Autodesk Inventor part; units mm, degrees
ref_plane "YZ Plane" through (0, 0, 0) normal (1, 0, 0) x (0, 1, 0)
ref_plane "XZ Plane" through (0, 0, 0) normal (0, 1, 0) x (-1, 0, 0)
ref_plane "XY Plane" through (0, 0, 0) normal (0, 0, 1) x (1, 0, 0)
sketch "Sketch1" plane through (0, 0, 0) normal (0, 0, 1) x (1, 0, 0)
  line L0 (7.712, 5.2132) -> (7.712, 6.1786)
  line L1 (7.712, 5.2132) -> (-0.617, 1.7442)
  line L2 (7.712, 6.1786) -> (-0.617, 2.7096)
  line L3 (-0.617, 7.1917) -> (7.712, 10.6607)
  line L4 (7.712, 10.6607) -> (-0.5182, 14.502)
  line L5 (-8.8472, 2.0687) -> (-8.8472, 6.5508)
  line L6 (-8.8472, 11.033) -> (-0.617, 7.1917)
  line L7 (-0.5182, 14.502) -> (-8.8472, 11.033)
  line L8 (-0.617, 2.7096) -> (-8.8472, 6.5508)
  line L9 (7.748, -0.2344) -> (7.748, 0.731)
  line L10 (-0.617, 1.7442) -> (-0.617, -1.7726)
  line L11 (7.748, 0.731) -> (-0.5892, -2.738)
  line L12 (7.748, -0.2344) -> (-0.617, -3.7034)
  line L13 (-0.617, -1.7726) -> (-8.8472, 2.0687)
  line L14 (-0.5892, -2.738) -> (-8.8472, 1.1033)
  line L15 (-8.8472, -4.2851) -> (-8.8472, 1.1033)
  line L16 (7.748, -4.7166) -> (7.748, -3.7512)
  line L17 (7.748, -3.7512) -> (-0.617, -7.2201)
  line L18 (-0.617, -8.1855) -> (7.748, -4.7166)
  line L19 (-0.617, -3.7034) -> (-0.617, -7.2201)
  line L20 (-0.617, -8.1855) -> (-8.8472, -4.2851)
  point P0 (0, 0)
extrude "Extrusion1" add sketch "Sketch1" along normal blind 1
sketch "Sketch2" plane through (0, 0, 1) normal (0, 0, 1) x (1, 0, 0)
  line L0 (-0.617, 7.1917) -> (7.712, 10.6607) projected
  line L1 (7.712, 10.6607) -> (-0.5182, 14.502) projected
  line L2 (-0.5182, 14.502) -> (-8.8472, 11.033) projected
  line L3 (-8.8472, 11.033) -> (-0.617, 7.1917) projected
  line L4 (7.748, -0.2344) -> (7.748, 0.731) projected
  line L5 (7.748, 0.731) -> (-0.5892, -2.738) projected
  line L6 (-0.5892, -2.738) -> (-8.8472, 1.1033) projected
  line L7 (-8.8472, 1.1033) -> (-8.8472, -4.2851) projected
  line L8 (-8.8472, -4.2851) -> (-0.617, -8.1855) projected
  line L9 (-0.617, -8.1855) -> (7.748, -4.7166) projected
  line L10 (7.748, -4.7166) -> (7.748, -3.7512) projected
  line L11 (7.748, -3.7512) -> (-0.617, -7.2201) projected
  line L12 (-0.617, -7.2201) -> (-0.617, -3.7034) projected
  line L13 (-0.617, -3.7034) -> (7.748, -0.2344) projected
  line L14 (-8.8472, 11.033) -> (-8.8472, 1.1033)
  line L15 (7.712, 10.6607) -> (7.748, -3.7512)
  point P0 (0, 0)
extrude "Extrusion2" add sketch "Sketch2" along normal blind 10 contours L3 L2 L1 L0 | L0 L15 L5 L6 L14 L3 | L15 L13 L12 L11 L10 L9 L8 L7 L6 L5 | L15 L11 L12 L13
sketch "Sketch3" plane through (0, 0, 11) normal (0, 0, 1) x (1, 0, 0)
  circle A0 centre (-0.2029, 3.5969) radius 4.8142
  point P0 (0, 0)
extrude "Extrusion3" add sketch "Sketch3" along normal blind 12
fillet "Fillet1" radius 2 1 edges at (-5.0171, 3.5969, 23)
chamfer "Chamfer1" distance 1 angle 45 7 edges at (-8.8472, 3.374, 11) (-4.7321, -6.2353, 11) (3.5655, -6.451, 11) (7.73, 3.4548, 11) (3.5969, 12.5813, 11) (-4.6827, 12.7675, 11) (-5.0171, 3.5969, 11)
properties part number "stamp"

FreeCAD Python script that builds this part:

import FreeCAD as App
import Part
import Sketcher
Q = App.Units.Quantity


def edges_at(feature, points):
    """Names of the edges that pass closest to the given points."""
    edges = feature.Shape.Edges
    near = lambda p: min(range(len(edges)), key=lambda i: edges[i].distToShape(Part.Vertex(*p))[0])
    return sorted({f"Edge{near(p) + 1}" for p in points})


def add_polygon(sketch, points):
    """Adds a closed chain of lines whose ends are joined by coincident constraints."""
    first, n = sketch.GeometryCount, len(points)
    for a, b in zip(points, points[1:] + points[:1]):
        sketch.addGeometry(Part.LineSegment(App.Vector(*a, 0), App.Vector(*b, 0)), False)
    for i in range(n):
        sketch.addConstraint(Sketcher.Constraint("Coincident", first + i, 2, first + (i + 1) % n, 1))

doc = App.newDocument("Part")
body = doc.addObject("PartDesign::Body", "Body")
body.AllowCompound = True

sketch1 = doc.addObject("Sketcher::SketchObject", "Sketch")
body.addObject(sketch1)
sketch1.AttachmentSupport = (doc.XY_Plane, [""])
sketch1.MapMode = "FlatFace"
add_polygon(sketch1, [(-0.617, 1.7442), (7.712, 5.2132), (7.712, 6.1786), (-0.617, 2.7096), (-8.8472, 6.5508), (-8.8472, 2.0687), (-0.617, -1.7726)])
add_polygon(sketch1, [(-8.8472, 11.033), (-0.617, 7.1917), (7.712, 10.6607), (-0.5182, 14.502)])
add_polygon(sketch1, [(-0.617, -3.7034), (7.748, -0.2344), (7.748, 0.731), (-0.5892, -2.738), (-8.8472, 1.1033), (-8.8472, -4.2851), (-0.617, -8.1855), (7.748, -4.7166), (7.748, -3.7512), (-0.617, -7.2201)])
sketch1.addConstraint([
    Sketcher.Constraint("Vertical", 1),
    Sketcher.Constraint("Vertical", 4),
    Sketcher.Constraint("Vertical", 6),
    Sketcher.Constraint("Vertical", 12),
    Sketcher.Constraint("Vertical", 15),
    Sketcher.Constraint("Vertical", 18),
    Sketcher.Constraint("Vertical", 20),
    Sketcher.Constraint("Distance", 13, Q("9.03 mm")),
    Sketcher.Constraint("DistanceY", 4, 2, 4, 1, Q("4.482 mm")),
    Sketcher.Constraint("DistanceY", 19, 2, -1, 1, Q("7.22 mm")),
    Sketcher.Constraint("DistanceY", 4, 2, 1, 2, Q("4.11 mm")),
    Sketcher.Constraint("DistanceY", 1, 1, 1, 2, Q("0.9654 mm")),
    Sketcher.Constraint("DistanceY", 6, 1, 6, 2, Q("3.5168 mm")),
    Sketcher.Constraint("DistanceY", 12, 1, 12, 2, Q("0.9654 mm")),
    Sketcher.Constraint("DistanceY", 15, 2, 15, 1, Q("5.3884 mm")),
    Sketcher.Constraint("DistanceY", 18, 1, 18, 2, Q("0.9654 mm")),
    Sketcher.Constraint("DistanceY", 20, 1, 20, 2, Q("3.5167 mm")),
    Sketcher.Constraint("DistanceX", -1, 1, 0, 2, Q("7.712 mm")),
    Sketcher.Constraint("DistanceX", 2, 2, -1, 1, Q("0.617 mm")),
    Sketcher.Constraint("DistanceX", 5, 2, -1, 1, Q("0.617 mm")),
    Sketcher.Constraint("DistanceX", 7, 2, -1, 1, Q("0.617 mm")),
    Sketcher.Constraint("DistanceX", -1, 1, 8, 2, Q("7.712 mm")),
    Sketcher.Constraint("DistanceY", -1, 1, 9, 2, Q("14.502 mm")),
    Sketcher.Constraint("DistanceY", -1, 1, 10, 2, Q("11.033 mm")),
    Sketcher.Constraint("DistanceX", -1, 1, 11, 2, Q("7.748 mm")),
    Sketcher.Constraint("DistanceY", -1, 1, 12, 2, Q("0.731 mm")),
    Sketcher.Constraint("DistanceY", 13, 2, -1, 1, Q("2.738 mm")),
    Sketcher.Constraint("DistanceY", 15, 2, -1, 1, Q("4.285 mm")),
    Sketcher.Constraint("DistanceX", 16, 2, -1, 1, Q("0.617 mm")),
    Sketcher.Constraint("DistanceX", -1, 1, 17, 2, Q("7.748 mm")),
    Sketcher.Constraint("DistanceX", 19, 2, -1, 1, Q("0.617 mm")),
    Sketcher.Constraint("DistanceY", 2, 2, 1, 2, Q("3.469 mm")),
    Sketcher.Constraint("DistanceY", 6, 2, 0, 2, Q("3.469 mm")),
    Sketcher.Constraint("DistanceY", 2, 2, 7, 2, Q("4.482 mm")),
    Sketcher.Constraint("DistanceY", 1, 2, 8, 2, Q("4.482 mm")),
    Sketcher.Constraint("DistanceX", 3, 2, 9, 2, Q("8.329 mm")),
    Sketcher.Constraint("DistanceX", 10, 2, 9, 2, Q("8.329 mm")),
    Sketcher.Constraint("DistanceY", 11, 2, 1, 2, Q("6.413 mm")),
    Sketcher.Constraint("DistanceX", 15, 2, 13, 2, Q("8.258 mm")),
    Sketcher.Constraint("DistanceY", 16, 2, 5, 2, Q("6.413 mm")),
    Sketcher.Constraint("DistanceY", 17, 2, 5, 2, Q("2.944 mm")),
    Sketcher.Constraint("Distance", 3, Q("9.0825 mm")),
])
pad1 = doc.addObject("PartDesign::Pad", "Pad")
body.addObject(pad1)
pad1.Profile = sketch1
pad1.Length = 1

sketch2 = doc.addObject("Sketcher::SketchObject", "Sketch001")
body.addObject(sketch2)
sketch2.AttachmentSupport = (doc.XY_Plane, [""])
sketch2.MapMode = "FlatFace"
sketch2.AttachmentOffset = App.Placement(App.Vector(0, 0, 1), App.Rotation())
add_polygon(sketch2, [(-0.5, 14.5), (-8.8, 11), (-8.8, -4.3), (-0.6, -8.2), (7.7, -4.7), (7.7, -3.8), (7.7, 10.7)])
sketch2.addConstraint([
    Sketcher.Constraint("Vertical", 1),
    Sketcher.Constraint("Vertical", 4),
    Sketcher.Constraint("Angle", 6, Q("154.98 deg")),
    Sketcher.Constraint("DistanceY", 1, 2, 1, 1, Q("15.318 mm")),
    Sketcher.Constraint("Distance", 5, Q("14.412 mm")),
    Sketcher.Constraint("DistanceY", 4, 1, 4, 2, Q("0.9654 mm")),
    Sketcher.Constraint("DistanceY", -1, 1, 0, 2, Q("11.033 mm")),
    Sketcher.Constraint("DistanceX", 2, 2, -1, 1, Q("0.617 mm")),
    Sketcher.Constraint("DistanceX", -1, 1, 3, 2, Q("7.748 mm")),
    Sketcher.Constraint("DistanceX", -1, 1, 5, 2, Q("7.712 mm")),
    Sketcher.Constraint("DistanceY", -1, 1, 6, 2, Q("14.502 mm")),
    Sketcher.Constraint("DistanceY", 2, 2, 3, 2, Q("3.469 mm")),
    Sketcher.Constraint("DistanceY", 1, 2, 4, 2, Q("0.534 mm")),
    Sketcher.Constraint("DistanceX", 0, 2, 6, 2, Q("8.329 mm")),
])
pad2 = doc.addObject("PartDesign::Pad", "Pad001")
body.addObject(pad2)
pad2.Profile = sketch2
pad2.Length = 10

sketch3 = doc.addObject("Sketcher::SketchObject", "Sketch002")
body.addObject(sketch3)
sketch3.AttachmentSupport = (doc.XY_Plane, [""])
sketch3.MapMode = "FlatFace"
sketch3.AttachmentOffset = App.Placement(App.Vector(0, 0, 11), App.Rotation())
sketch3.addGeometry(Part.Circle(App.Vector(-0.2, 3.6, 0), App.Vector(0, 0, 1), 4.8), False)
sketch3.addConstraint([
    Sketcher.Constraint("Diameter", 0, Q("9.6284 mm")),
    Sketcher.Constraint("DistanceX", 0, 3, -1, 1, Q("0.203 mm")),
    Sketcher.Constraint("DistanceY", -1, 1, 0, 3, Q("3.597 mm")),
])
pad3 = doc.addObject("PartDesign::Pad", "Pad002")
body.addObject(pad3)
pad3.Profile = sketch3
pad3.Length = 12
doc.recompute()

fillet = doc.addObject("PartDesign::Fillet", "Fillet")
body.addObject(fillet)
fillet.Base = (pad3, edges_at(pad3, [(-5.017, 3.597, 23)]))
fillet.Radius = 2
doc.recompute()

chamfer = doc.addObject("PartDesign::Chamfer", "Chamfer")
body.addObject(chamfer)
chamfer.Base = (fillet, edges_at(fillet, [
    (-8.847, 3.374, 11),
    (-4.732, -6.235, 11),
    (3.566, -6.451, 11),
    (7.73, 3.455, 11),
    (3.597, 12.581, 11),
    (-4.683, 12.768, 11),
    (-5.017, 3.597, 11),
]))
chamfer.Size = 1

doc.recompute()
